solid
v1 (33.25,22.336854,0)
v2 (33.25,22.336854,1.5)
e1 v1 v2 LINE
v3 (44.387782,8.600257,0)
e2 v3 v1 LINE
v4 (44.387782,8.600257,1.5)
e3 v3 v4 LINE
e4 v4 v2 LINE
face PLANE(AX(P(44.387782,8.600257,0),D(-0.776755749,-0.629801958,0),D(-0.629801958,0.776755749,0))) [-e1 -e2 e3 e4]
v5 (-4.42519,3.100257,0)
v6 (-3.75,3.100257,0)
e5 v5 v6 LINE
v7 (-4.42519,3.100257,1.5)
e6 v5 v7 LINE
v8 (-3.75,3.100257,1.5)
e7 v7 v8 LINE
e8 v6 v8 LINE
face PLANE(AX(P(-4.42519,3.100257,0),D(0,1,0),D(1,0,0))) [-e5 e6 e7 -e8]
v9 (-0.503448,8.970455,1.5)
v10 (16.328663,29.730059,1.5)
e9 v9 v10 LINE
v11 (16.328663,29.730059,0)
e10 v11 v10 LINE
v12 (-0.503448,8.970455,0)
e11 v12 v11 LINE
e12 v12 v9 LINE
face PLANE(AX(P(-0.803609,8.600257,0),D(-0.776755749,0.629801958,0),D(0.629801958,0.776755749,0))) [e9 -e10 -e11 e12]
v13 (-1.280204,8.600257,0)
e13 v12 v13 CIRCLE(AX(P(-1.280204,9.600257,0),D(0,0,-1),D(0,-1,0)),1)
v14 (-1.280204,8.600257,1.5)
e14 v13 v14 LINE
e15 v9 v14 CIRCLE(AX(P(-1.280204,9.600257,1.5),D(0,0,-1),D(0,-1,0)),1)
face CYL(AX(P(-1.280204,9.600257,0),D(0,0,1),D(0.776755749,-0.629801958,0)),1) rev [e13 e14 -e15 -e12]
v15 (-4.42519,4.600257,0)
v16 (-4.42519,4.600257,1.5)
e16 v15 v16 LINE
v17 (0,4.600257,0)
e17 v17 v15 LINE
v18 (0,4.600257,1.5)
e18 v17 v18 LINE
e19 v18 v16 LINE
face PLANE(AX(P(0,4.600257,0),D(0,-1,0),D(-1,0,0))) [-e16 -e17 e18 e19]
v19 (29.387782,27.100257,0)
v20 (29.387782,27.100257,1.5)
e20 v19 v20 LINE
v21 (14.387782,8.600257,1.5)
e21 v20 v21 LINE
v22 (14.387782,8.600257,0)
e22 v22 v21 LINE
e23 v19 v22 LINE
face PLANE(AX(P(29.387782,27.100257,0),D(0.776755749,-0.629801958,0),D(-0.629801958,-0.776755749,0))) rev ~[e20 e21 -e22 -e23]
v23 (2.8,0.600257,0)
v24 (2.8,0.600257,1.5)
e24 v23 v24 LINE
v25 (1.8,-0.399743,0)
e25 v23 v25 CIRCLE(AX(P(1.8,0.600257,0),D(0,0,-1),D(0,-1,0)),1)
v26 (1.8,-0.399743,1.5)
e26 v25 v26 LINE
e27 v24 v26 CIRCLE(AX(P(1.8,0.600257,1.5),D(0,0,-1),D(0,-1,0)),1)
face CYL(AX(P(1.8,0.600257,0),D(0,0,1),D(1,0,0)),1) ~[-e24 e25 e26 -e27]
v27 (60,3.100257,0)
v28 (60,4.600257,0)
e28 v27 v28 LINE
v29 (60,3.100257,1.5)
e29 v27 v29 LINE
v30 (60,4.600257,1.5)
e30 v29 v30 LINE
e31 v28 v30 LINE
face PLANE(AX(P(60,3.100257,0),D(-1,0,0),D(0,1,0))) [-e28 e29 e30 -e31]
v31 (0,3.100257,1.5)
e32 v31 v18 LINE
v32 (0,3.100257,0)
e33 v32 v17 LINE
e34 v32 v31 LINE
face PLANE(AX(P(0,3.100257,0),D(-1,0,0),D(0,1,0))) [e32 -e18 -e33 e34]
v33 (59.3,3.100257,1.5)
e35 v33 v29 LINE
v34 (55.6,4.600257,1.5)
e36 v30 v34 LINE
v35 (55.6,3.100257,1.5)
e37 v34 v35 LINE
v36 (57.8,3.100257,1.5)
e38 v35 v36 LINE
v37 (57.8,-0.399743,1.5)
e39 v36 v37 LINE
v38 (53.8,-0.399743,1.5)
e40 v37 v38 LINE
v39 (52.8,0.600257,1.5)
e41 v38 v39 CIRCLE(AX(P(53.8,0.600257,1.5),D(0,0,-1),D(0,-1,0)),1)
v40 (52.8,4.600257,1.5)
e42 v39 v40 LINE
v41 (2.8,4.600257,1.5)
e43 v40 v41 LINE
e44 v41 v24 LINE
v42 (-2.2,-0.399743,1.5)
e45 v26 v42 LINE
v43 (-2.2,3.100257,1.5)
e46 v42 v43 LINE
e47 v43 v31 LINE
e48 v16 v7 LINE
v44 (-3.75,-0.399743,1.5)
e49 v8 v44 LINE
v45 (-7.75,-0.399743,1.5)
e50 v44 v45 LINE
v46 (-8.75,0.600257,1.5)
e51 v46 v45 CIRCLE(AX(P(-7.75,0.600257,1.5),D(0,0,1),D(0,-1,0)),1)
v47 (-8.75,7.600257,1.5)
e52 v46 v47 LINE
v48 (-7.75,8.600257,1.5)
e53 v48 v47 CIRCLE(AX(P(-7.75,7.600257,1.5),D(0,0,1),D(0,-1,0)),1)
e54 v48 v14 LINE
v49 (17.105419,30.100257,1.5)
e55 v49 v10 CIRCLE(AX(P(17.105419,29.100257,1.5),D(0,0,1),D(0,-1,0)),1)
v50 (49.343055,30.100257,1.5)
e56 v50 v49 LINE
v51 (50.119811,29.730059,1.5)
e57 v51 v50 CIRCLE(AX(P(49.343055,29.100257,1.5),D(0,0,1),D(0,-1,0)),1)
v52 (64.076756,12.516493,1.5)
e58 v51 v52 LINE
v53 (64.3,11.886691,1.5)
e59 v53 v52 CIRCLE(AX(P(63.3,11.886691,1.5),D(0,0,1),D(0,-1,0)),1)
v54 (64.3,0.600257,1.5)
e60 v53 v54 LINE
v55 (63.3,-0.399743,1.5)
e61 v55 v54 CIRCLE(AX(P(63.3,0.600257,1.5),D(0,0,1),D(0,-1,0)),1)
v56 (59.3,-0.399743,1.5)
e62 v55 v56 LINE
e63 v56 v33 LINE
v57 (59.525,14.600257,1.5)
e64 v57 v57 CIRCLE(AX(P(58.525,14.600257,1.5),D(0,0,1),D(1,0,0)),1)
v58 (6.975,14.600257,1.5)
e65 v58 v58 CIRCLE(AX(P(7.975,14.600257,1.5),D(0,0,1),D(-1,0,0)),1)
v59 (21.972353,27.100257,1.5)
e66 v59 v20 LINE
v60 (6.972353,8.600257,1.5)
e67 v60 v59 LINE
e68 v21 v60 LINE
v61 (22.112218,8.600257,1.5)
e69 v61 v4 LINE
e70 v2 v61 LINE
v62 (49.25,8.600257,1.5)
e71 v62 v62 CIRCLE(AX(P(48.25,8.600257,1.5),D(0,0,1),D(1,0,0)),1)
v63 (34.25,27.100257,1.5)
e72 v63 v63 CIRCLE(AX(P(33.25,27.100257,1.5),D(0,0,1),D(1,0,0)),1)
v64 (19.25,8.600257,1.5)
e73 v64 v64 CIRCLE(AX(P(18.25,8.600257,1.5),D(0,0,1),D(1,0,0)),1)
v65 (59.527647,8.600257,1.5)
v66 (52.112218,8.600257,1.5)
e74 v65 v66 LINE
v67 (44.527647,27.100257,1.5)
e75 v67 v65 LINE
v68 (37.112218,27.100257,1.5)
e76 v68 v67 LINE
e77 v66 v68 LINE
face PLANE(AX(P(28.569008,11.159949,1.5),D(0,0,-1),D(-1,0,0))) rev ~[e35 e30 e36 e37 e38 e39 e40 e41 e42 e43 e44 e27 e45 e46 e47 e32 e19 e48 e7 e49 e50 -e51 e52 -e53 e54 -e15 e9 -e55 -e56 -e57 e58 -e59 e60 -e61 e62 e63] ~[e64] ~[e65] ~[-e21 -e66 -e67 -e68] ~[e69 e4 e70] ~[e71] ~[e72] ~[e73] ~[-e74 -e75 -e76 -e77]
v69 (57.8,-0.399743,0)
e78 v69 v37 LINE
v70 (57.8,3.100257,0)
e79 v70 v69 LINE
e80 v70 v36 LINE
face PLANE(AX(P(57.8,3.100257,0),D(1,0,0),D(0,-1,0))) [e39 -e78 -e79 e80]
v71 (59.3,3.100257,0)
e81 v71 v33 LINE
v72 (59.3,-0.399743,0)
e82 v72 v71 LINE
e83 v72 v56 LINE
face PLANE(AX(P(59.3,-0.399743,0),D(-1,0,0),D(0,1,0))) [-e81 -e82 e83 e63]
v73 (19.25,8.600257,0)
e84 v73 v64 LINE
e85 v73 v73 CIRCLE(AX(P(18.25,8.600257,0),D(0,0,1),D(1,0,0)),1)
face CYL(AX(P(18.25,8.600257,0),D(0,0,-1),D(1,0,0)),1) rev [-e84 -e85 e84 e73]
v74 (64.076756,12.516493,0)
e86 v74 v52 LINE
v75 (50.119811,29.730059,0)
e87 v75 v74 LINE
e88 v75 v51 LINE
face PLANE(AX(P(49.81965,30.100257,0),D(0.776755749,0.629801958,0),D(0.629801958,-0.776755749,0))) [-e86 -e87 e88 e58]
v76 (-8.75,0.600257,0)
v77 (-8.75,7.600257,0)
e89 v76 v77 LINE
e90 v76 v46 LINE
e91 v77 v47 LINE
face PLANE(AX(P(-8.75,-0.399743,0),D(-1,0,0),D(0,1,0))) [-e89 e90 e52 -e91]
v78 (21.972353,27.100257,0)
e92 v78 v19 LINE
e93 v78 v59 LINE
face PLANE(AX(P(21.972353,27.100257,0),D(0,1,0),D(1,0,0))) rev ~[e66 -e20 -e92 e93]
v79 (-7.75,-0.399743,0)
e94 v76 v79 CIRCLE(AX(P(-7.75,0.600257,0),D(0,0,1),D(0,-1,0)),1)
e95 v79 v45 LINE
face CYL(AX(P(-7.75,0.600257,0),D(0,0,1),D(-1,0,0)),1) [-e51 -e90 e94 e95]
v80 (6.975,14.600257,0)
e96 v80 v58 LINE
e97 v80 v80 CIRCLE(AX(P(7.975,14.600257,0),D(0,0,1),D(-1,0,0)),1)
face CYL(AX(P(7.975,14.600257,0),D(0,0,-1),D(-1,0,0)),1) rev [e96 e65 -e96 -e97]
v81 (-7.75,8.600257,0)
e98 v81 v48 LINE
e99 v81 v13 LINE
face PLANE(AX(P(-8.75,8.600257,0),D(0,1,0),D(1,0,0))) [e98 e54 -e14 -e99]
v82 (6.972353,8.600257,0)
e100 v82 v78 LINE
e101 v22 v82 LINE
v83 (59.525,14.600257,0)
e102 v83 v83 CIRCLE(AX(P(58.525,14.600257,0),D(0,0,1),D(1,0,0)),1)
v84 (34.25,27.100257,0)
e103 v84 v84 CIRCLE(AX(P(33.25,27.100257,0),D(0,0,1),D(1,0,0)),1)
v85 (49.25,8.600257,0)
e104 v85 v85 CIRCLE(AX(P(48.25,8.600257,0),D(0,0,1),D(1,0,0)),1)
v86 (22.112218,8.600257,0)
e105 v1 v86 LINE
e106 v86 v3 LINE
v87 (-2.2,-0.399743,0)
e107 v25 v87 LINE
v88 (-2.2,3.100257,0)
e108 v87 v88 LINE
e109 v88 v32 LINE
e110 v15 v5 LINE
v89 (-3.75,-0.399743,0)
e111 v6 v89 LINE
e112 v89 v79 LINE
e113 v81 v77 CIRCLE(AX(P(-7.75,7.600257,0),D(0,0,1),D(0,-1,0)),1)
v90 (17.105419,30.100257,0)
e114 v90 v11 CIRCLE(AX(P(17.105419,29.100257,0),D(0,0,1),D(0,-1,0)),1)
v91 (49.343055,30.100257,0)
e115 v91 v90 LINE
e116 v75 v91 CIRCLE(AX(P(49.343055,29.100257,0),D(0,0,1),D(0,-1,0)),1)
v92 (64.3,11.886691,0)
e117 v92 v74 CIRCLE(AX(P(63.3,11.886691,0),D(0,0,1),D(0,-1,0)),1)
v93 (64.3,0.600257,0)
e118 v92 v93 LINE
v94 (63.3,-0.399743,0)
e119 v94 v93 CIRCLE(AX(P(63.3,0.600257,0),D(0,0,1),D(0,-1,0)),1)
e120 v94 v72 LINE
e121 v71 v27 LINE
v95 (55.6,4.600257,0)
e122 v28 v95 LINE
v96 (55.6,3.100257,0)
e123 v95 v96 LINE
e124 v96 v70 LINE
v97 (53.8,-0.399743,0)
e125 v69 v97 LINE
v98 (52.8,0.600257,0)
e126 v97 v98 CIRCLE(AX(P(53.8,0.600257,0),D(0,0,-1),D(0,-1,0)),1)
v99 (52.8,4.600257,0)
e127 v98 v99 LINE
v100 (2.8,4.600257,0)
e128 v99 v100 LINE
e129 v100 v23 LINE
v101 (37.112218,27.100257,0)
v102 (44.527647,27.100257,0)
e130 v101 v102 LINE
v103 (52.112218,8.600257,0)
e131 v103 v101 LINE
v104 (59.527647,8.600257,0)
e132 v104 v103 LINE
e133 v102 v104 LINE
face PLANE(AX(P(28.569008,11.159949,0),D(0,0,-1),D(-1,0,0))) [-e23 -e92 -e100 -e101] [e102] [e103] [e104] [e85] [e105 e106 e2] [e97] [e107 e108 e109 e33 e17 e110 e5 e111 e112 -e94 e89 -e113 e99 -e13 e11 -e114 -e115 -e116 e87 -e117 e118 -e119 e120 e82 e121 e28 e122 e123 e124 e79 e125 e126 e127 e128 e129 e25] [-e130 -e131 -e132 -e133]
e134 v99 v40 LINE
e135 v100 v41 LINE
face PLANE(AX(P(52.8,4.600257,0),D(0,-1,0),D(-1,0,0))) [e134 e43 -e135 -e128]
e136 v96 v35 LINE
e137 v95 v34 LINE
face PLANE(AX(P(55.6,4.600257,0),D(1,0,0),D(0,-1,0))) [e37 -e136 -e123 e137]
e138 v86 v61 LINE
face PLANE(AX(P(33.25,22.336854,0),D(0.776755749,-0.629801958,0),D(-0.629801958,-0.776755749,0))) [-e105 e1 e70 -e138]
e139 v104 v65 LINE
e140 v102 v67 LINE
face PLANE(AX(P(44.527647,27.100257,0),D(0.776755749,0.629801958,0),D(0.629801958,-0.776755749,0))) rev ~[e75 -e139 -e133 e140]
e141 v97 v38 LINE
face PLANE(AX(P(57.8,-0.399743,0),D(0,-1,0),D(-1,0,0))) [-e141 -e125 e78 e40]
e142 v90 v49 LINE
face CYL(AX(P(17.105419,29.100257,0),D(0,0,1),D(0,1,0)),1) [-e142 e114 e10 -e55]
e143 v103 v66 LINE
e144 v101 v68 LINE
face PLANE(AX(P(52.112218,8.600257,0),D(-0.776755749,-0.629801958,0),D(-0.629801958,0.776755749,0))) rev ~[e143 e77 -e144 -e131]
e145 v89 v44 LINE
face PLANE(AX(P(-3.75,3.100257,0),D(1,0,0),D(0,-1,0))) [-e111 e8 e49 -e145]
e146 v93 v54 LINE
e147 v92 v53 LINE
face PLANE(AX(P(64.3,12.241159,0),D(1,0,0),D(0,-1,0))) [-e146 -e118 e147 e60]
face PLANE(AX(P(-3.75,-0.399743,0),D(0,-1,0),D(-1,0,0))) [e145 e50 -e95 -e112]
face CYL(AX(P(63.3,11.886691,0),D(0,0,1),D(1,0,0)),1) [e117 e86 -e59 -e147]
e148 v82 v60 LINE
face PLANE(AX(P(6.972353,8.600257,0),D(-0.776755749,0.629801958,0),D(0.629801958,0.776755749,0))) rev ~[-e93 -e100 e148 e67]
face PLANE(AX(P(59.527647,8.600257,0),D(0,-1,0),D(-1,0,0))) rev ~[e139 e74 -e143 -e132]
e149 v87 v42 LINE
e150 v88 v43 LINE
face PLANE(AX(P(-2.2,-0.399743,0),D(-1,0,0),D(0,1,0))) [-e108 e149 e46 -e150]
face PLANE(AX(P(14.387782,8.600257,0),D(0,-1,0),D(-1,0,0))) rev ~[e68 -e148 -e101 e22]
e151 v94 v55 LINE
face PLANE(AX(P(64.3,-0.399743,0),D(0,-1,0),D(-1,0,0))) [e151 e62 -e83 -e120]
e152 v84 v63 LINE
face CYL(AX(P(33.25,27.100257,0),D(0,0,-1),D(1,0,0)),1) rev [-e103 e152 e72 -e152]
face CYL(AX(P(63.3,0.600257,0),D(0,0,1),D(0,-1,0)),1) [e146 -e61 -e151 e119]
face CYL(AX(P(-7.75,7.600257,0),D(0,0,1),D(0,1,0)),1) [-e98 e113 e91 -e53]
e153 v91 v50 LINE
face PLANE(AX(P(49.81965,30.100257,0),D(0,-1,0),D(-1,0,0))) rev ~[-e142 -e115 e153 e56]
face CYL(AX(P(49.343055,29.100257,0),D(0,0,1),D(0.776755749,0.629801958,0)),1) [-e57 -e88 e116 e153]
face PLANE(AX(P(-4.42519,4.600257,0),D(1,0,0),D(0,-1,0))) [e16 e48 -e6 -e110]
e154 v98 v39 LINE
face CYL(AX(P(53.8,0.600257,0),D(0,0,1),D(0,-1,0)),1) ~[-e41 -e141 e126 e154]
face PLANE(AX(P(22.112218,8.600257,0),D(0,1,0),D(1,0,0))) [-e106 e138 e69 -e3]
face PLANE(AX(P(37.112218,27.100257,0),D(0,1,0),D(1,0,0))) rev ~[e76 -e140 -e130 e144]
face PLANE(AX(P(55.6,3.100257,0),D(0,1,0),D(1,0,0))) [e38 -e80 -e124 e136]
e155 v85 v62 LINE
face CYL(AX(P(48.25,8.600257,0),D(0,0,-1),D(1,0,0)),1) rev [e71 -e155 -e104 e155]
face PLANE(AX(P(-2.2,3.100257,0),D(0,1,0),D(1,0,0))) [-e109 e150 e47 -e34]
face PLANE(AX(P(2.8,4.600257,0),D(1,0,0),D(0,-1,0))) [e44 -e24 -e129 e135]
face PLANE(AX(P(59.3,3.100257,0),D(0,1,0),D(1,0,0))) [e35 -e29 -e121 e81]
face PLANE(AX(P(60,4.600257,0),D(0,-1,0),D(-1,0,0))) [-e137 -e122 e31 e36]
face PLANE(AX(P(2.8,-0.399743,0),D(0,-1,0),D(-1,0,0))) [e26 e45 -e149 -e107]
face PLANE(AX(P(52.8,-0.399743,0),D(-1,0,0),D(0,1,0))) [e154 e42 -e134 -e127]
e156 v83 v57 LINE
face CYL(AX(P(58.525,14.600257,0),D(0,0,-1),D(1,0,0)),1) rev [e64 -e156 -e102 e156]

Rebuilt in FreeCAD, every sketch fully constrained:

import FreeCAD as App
import Part
import Sketcher

V = App.Vector


def edges_at(feature, points):
    """Names of the edges that pass closest to the given points."""
    edges = feature.Shape.Edges
    near = lambda p: min(range(len(edges)), key=lambda i: edges[i].distToShape(Part.Vertex(*p))[0])
    return sorted({f"Edge{near(p) + 1}" for p in points})

doc = App.newDocument("Part")
body = doc.addObject("PartDesign::Body", "Body")

sketch1 = body.newObject("Sketcher::SketchObject", "Sketch")
sketch1.AttachmentSupport = (doc.getObject("XY_Plane"), [""])
sketch1.MapMode = "FlatFace"
sketch1.addGeometry([
    Part.LineSegment(V(59.3, -0.4, 0), V(64.3, -0.4, 0)),
    Part.LineSegment(V(64.3, -0.4, 0), V(64.3, 12.2, 0)),
    Part.LineSegment(V(64.3, 12.2, 0), V(49.8, 30.1, 0)),
    Part.LineSegment(V(49.8, 30.1, 0), V(16.6, 30.1, 0)),
    Part.LineSegment(V(16.6, 30.1, 0), V(-0.8, 8.6, 0)),
    Part.LineSegment(V(-0.8, 8.6, 0), V(-8.8, 8.6, 0)),
    Part.LineSegment(V(-8.8, 8.6, 0), V(-8.8, -0.4, 0)),
    Part.LineSegment(V(-8.8, -0.4, 0), V(-3.8, -0.4, 0)),
    Part.LineSegment(V(-3.8, -0.4, 0), V(-3.8, 3.1, 0)),
    Part.LineSegment(V(-3.8, 3.1, 0), V(-4.4, 3.1, 0)),
    Part.LineSegment(V(-4.4, 3.1, 0), V(-4.4, 4.6, 0)),
    Part.LineSegment(V(-4.4, 4.6, 0), V(0, 4.6, 0)),
    Part.LineSegment(V(0, 4.6, 0), V(0, 3.1, 0)),
    Part.LineSegment(V(0, 3.1, 0), V(-2.2, 3.1, 0)),
    Part.LineSegment(V(-2.2, 3.1, 0), V(-2.2, -0.4, 0)),
    Part.LineSegment(V(-2.2, -0.4, 0), V(2.8, -0.4, 0)),
    Part.LineSegment(V(2.8, -0.4, 0), V(2.8, 4.6, 0)),
    Part.LineSegment(V(2.8, 4.6, 0), V(52.8, 4.6, 0)),
    Part.LineSegment(V(52.8, 4.6, 0), V(52.8, -0.4, 0)),
    Part.LineSegment(V(52.8, -0.4, 0), V(57.8, -0.4, 0)),
    Part.LineSegment(V(57.8, -0.4, 0), V(57.8, 3.1, 0)),
    Part.LineSegment(V(57.8, 3.1, 0), V(55.6, 3.1, 0)),
    Part.LineSegment(V(55.6, 3.1, 0), V(55.6, 4.6, 0)),
    Part.LineSegment(V(55.6, 4.6, 0), V(60, 4.6, 0)),
    Part.LineSegment(V(60, 4.6, 0), V(60, 3.1, 0)),
    Part.LineSegment(V(60, 3.1, 0), V(59.3, 3.1, 0)),
    Part.LineSegment(V(59.3, 3.1, 0), V(59.3, -0.4, 0)),
    Part.Circle(V(48.2, 8.6, 0), V(0, 0, 1), 1),
    Part.Circle(V(58.5, 14.6, 0), V(0, 0, 1), 1),
    Part.Circle(V(18.2, 8.6, 0), V(0, 0, 1), 1),
    Part.LineSegment(V(44.4, 8.6, 0), V(22.1, 8.6, 0)),
    Part.LineSegment(V(22.1, 8.6, 0), V(33.2, 22.3, 0)),
    Part.LineSegment(V(33.2, 22.3, 0), V(44.4, 8.6, 0)),
    Part.Circle(V(8, 14.6, 0), V(0, 0, 1), 1),
    Part.LineSegment(V(59.5, 8.6, 0), V(52.1, 8.6, 0)),
    Part.LineSegment(V(52.1, 8.6, 0), V(37.1, 27.1, 0)),
    Part.LineSegment(V(37.1, 27.1, 0), V(44.5, 27.1, 0)),
    Part.LineSegment(V(44.5, 27.1, 0), V(59.5, 8.6, 0)),
    Part.LineSegment(V(22, 27.1, 0), V(29.4, 27.1, 0)),
    Part.LineSegment(V(29.4, 27.1, 0), V(14.4, 8.6, 0)),
    Part.LineSegment(V(14.4, 8.6, 0), V(7, 8.6, 0)),
    Part.LineSegment(V(7, 8.6, 0), V(22, 27.1, 0)),
    Part.Circle(V(33.2, 27.1, 0), V(0, 0, 1), 1),
], False)
sketch1.addConstraint([
    Sketcher.Constraint("Coincident", 0, 2, 1, 1),
    Sketcher.Constraint("Coincident", 1, 2, 2, 1),
    Sketcher.Constraint("Coincident", 2, 2, 3, 1),
    Sketcher.Constraint("Coincident", 3, 2, 4, 1),
    Sketcher.Constraint("Coincident", 4, 2, 5, 1),
    Sketcher.Constraint("Coincident", 5, 2, 6, 1),
    Sketcher.Constraint("Coincident", 6, 2, 7, 1),
    Sketcher.Constraint("Coincident", 7, 2, 8, 1),
    Sketcher.Constraint("Coincident", 8, 2, 9, 1),
    Sketcher.Constraint("Coincident", 9, 2, 10, 1),
    Sketcher.Constraint("Coincident", 10, 2, 11, 1),
    Sketcher.Constraint("Coincident", 11, 2, 12, 1),
    Sketcher.Constraint("Coincident", 12, 2, 13, 1),
    Sketcher.Constraint("Coincident", 13, 2, 14, 1),
    Sketcher.Constraint("Coincident", 14, 2, 15, 1),
    Sketcher.Constraint("Coincident", 15, 2, 16, 1),
    Sketcher.Constraint("Coincident", 16, 2, 17, 1),
    Sketcher.Constraint("Coincident", 17, 2, 18, 1),
    Sketcher.Constraint("Coincident", 18, 2, 19, 1),
    Sketcher.Constraint("Coincident", 19, 2, 20, 1),
    Sketcher.Constraint("Coincident", 20, 2, 21, 1),
    Sketcher.Constraint("Coincident", 21, 2, 22, 1),
    Sketcher.Constraint("Coincident", 22, 2, 23, 1),
    Sketcher.Constraint("Coincident", 23, 2, 24, 1),
    Sketcher.Constraint("Coincident", 24, 2, 25, 1),
    Sketcher.Constraint("Coincident", 25, 2, 26, 1),
    Sketcher.Constraint("Coincident", 26, 2, 0, 1),
    Sketcher.Constraint("Coincident", 30, 2, 31, 1),
    Sketcher.Constraint("Coincident", 31, 2, 32, 1),
    Sketcher.Constraint("Coincident", 32, 2, 30, 1),
    Sketcher.Constraint("Coincident", 34, 2, 35, 1),
    Sketcher.Constraint("Coincident", 35, 2, 36, 1),
    Sketcher.Constraint("Coincident", 36, 2, 37, 1),
    Sketcher.Constraint("Coincident", 37, 2, 34, 1),
    Sketcher.Constraint("Coincident", 38, 2, 39, 1),
    Sketcher.Constraint("Coincident", 39, 2, 40, 1),
    Sketcher.Constraint("Coincident", 40, 2, 41, 1),
    Sketcher.Constraint("Coincident", 41, 2, 38, 1),
    Sketcher.Constraint("Horizontal", 0),
    Sketcher.Constraint("Vertical", 1),
    Sketcher.Constraint("Horizontal", 3),
    Sketcher.Constraint("Horizontal", 5),
    Sketcher.Constraint("Vertical", 6),
    Sketcher.Constraint("Horizontal", 7),
    Sketcher.Constraint("Vertical", 8),
    Sketcher.Constraint("Horizontal", 9),
    Sketcher.Constraint("Vertical", 10),
    Sketcher.Constraint("Horizontal", 11),
    Sketcher.Constraint("Vertical", 12),
    Sketcher.Constraint("Horizontal", 13),
    Sketcher.Constraint("Vertical", 14),
    Sketcher.Constraint("Horizontal", 15),
    Sketcher.Constraint("Vertical", 16),
    Sketcher.Constraint("Horizontal", 17),
    Sketcher.Constraint("Vertical", 18),
    Sketcher.Constraint("Horizontal", 19),
    Sketcher.Constraint("Vertical", 20),
    Sketcher.Constraint("Horizontal", 21),
    Sketcher.Constraint("Vertical", 22),
    Sketcher.Constraint("Horizontal", 23),
    Sketcher.Constraint("Vertical", 24),
    Sketcher.Constraint("Horizontal", 25),
    Sketcher.Constraint("Vertical", 26),
    Sketcher.Constraint("Horizontal", 30),
    Sketcher.Constraint("Horizontal", 34),
    Sketcher.Constraint("Horizontal", 36),
    Sketcher.Constraint("Horizontal", 38),
    Sketcher.Constraint("Horizontal", 40),
    Sketcher.Constraint("Equal", 27, 28),
    Sketcher.Constraint("Equal", 28, 29),
    Sketcher.Constraint("Equal", 29, 33),
    Sketcher.Constraint("Equal", 33, 42),
    Sketcher.Constraint("PointOnObject", 11, 2, -2),
    Sketcher.Constraint("Parallel", 4, 31),
    Sketcher.Constraint("Parallel", 2, 32),
    Sketcher.Constraint("Parallel", 32, 35),
    Sketcher.Constraint("Parallel", 35, 37),
    Sketcher.Constraint("Parallel", 31, 39),
    Sketcher.Constraint("Parallel", 39, 41),
    Sketcher.Constraint("Horizontal", 27, 3, 29, 3),
    Sketcher.Constraint("Horizontal", 28, 3, 33, 3),
    Sketcher.Constraint("Horizontal", 29, 3, 4, 2),
    Sketcher.Constraint("Horizontal", 0, 2, 6, 2),
    Sketcher.Constraint("Horizontal", 9, 2, 12, 2),
    Sketcher.Constraint("Horizontal", 7, 2, 14, 2),
    Sketcher.Constraint("Horizontal", 11, 2, 16, 2),
    Sketcher.Constraint("Horizontal", 15, 2, 18, 2),
    Sketcher.Constraint("Horizontal", 13, 2, 20, 2),
    Sketcher.Constraint("Horizontal", 17, 2, 22, 2),
    Sketcher.Constraint("Horizontal", 21, 2, 24, 2),
    Sketcher.Constraint("Horizontal", 5, 2, 30, 2),
    Sketcher.Constraint("Horizontal", 32, 2, 34, 2),
    Sketcher.Constraint("Horizontal", 42, 3, 35, 2),
    Sketcher.Constraint("Horizontal", 36, 2, 38, 2),
    Sketcher.Constraint("Horizontal", 37, 2, 39, 2),
    Sketcher.Constraint("Vertical", 42, 3, 31, 2),
    Sketcher.Constraint("Equal", 0, 7),
    Sketcher.Constraint("Equal", 7, 15),
    Sketcher.Constraint("Equal", 15, 19),
    Sketcher.Constraint("Equal", 13, 21),
    Sketcher.Constraint("Equal", 36, 38),
    Sketcher.Constraint("Equal", 19, 16),
    Sketcher.Constraint("Equal", 31, 32),
    Sketcher.Constraint("Diameter", 27, 2.0),
    Sketcher.Constraint("DistanceX", 0, 1, 0, 2, 5.0),
    Sketcher.Constraint("DistanceX", 17, 1, 17, 2, 50.0),
    Sketcher.Constraint("DistanceY", 6, 2, 6, 1, 9.0),
    Sketcher.Constraint("DistanceX", 13, 2, 13, 1, 2.2),
    Sketcher.Constraint("DistanceX", 23, 1, 23, 2, 4.4),
    Sketcher.Constraint("DistanceX", 25, 2, 25, 1, 0.7),
    Sketcher.Constraint("DistanceY", 8, 1, 8, 2, 3.5),
    Sketcher.Constraint("DistanceY", 27, 3, 28, 3, 6.0),
    Sketcher.Constraint("DistanceX", 29, 3, 27, 3, 30.0),
    Sketcher.Constraint("DistanceX", 42, 3, 27, 3, 15.0),
    Sketcher.Constraint("DistanceY", 42, 3, 2, 2, 3.0),
    Sketcher.Constraint("DistanceX", 5, 2, 29, 3, 27.0),
    Sketcher.Constraint("DistanceY", 27, 3, 42, 3, 18.5),
    Sketcher.Constraint("DistanceX", -1, 1, 27, 3, 48.25),
    Sketcher.Constraint("DistanceX", 33, 3, 28, 3, 50.55),
    Sketcher.Constraint("DistanceX", -1, 1, 28, 3, 58.525),
    Sketcher.Constraint("DistanceX", 5, 2, 5, 1, 7.946391),
    Sketcher.Constraint("DistanceX", 9, 2, 9, 1, 0.67519),
    Sketcher.Constraint("DistanceX", 34, 2, 34, 1, 7.415429),
    Sketcher.Constraint("Distance", 2, 22.991909),
    Sketcher.Constraint("Distance", 4, 27.679229),
    Sketcher.Constraint("Distance", 31, 17.684578),
    Sketcher.Constraint("DistanceY", -1, 1, 1, 2, 12.241159),
    Sketcher.Constraint("DistanceX", 3, 2, 38, 2, 12.758958),
    Sketcher.Constraint("DistanceX", -1, 1, 34, 2, 52.112218),
])
pad1 = body.newObject("PartDesign::Pad", "Pad")
pad1.Profile = sketch1
pad1.Length = 1.5
doc.recompute()

fillet = body.newObject("PartDesign::Fillet", "Fillet")
fillet.Base = (pad1, edges_at(pad1, [
    (64.3, -0.4, 0.75),
    (52.8, -0.4, 0.75),
    (2.8, -0.4, 0.75),
    (-8.75, -0.4, 0.75),
    (-8.75, 8.6, 0.75),
    (-0.804, 8.6, 0.75),
    (16.629, 30.1, 0.75),
    (49.82, 30.1, 0.75),
    (64.3, 12.241, 0.75),
]))
fillet.Radius = 1

doc.recompute()
